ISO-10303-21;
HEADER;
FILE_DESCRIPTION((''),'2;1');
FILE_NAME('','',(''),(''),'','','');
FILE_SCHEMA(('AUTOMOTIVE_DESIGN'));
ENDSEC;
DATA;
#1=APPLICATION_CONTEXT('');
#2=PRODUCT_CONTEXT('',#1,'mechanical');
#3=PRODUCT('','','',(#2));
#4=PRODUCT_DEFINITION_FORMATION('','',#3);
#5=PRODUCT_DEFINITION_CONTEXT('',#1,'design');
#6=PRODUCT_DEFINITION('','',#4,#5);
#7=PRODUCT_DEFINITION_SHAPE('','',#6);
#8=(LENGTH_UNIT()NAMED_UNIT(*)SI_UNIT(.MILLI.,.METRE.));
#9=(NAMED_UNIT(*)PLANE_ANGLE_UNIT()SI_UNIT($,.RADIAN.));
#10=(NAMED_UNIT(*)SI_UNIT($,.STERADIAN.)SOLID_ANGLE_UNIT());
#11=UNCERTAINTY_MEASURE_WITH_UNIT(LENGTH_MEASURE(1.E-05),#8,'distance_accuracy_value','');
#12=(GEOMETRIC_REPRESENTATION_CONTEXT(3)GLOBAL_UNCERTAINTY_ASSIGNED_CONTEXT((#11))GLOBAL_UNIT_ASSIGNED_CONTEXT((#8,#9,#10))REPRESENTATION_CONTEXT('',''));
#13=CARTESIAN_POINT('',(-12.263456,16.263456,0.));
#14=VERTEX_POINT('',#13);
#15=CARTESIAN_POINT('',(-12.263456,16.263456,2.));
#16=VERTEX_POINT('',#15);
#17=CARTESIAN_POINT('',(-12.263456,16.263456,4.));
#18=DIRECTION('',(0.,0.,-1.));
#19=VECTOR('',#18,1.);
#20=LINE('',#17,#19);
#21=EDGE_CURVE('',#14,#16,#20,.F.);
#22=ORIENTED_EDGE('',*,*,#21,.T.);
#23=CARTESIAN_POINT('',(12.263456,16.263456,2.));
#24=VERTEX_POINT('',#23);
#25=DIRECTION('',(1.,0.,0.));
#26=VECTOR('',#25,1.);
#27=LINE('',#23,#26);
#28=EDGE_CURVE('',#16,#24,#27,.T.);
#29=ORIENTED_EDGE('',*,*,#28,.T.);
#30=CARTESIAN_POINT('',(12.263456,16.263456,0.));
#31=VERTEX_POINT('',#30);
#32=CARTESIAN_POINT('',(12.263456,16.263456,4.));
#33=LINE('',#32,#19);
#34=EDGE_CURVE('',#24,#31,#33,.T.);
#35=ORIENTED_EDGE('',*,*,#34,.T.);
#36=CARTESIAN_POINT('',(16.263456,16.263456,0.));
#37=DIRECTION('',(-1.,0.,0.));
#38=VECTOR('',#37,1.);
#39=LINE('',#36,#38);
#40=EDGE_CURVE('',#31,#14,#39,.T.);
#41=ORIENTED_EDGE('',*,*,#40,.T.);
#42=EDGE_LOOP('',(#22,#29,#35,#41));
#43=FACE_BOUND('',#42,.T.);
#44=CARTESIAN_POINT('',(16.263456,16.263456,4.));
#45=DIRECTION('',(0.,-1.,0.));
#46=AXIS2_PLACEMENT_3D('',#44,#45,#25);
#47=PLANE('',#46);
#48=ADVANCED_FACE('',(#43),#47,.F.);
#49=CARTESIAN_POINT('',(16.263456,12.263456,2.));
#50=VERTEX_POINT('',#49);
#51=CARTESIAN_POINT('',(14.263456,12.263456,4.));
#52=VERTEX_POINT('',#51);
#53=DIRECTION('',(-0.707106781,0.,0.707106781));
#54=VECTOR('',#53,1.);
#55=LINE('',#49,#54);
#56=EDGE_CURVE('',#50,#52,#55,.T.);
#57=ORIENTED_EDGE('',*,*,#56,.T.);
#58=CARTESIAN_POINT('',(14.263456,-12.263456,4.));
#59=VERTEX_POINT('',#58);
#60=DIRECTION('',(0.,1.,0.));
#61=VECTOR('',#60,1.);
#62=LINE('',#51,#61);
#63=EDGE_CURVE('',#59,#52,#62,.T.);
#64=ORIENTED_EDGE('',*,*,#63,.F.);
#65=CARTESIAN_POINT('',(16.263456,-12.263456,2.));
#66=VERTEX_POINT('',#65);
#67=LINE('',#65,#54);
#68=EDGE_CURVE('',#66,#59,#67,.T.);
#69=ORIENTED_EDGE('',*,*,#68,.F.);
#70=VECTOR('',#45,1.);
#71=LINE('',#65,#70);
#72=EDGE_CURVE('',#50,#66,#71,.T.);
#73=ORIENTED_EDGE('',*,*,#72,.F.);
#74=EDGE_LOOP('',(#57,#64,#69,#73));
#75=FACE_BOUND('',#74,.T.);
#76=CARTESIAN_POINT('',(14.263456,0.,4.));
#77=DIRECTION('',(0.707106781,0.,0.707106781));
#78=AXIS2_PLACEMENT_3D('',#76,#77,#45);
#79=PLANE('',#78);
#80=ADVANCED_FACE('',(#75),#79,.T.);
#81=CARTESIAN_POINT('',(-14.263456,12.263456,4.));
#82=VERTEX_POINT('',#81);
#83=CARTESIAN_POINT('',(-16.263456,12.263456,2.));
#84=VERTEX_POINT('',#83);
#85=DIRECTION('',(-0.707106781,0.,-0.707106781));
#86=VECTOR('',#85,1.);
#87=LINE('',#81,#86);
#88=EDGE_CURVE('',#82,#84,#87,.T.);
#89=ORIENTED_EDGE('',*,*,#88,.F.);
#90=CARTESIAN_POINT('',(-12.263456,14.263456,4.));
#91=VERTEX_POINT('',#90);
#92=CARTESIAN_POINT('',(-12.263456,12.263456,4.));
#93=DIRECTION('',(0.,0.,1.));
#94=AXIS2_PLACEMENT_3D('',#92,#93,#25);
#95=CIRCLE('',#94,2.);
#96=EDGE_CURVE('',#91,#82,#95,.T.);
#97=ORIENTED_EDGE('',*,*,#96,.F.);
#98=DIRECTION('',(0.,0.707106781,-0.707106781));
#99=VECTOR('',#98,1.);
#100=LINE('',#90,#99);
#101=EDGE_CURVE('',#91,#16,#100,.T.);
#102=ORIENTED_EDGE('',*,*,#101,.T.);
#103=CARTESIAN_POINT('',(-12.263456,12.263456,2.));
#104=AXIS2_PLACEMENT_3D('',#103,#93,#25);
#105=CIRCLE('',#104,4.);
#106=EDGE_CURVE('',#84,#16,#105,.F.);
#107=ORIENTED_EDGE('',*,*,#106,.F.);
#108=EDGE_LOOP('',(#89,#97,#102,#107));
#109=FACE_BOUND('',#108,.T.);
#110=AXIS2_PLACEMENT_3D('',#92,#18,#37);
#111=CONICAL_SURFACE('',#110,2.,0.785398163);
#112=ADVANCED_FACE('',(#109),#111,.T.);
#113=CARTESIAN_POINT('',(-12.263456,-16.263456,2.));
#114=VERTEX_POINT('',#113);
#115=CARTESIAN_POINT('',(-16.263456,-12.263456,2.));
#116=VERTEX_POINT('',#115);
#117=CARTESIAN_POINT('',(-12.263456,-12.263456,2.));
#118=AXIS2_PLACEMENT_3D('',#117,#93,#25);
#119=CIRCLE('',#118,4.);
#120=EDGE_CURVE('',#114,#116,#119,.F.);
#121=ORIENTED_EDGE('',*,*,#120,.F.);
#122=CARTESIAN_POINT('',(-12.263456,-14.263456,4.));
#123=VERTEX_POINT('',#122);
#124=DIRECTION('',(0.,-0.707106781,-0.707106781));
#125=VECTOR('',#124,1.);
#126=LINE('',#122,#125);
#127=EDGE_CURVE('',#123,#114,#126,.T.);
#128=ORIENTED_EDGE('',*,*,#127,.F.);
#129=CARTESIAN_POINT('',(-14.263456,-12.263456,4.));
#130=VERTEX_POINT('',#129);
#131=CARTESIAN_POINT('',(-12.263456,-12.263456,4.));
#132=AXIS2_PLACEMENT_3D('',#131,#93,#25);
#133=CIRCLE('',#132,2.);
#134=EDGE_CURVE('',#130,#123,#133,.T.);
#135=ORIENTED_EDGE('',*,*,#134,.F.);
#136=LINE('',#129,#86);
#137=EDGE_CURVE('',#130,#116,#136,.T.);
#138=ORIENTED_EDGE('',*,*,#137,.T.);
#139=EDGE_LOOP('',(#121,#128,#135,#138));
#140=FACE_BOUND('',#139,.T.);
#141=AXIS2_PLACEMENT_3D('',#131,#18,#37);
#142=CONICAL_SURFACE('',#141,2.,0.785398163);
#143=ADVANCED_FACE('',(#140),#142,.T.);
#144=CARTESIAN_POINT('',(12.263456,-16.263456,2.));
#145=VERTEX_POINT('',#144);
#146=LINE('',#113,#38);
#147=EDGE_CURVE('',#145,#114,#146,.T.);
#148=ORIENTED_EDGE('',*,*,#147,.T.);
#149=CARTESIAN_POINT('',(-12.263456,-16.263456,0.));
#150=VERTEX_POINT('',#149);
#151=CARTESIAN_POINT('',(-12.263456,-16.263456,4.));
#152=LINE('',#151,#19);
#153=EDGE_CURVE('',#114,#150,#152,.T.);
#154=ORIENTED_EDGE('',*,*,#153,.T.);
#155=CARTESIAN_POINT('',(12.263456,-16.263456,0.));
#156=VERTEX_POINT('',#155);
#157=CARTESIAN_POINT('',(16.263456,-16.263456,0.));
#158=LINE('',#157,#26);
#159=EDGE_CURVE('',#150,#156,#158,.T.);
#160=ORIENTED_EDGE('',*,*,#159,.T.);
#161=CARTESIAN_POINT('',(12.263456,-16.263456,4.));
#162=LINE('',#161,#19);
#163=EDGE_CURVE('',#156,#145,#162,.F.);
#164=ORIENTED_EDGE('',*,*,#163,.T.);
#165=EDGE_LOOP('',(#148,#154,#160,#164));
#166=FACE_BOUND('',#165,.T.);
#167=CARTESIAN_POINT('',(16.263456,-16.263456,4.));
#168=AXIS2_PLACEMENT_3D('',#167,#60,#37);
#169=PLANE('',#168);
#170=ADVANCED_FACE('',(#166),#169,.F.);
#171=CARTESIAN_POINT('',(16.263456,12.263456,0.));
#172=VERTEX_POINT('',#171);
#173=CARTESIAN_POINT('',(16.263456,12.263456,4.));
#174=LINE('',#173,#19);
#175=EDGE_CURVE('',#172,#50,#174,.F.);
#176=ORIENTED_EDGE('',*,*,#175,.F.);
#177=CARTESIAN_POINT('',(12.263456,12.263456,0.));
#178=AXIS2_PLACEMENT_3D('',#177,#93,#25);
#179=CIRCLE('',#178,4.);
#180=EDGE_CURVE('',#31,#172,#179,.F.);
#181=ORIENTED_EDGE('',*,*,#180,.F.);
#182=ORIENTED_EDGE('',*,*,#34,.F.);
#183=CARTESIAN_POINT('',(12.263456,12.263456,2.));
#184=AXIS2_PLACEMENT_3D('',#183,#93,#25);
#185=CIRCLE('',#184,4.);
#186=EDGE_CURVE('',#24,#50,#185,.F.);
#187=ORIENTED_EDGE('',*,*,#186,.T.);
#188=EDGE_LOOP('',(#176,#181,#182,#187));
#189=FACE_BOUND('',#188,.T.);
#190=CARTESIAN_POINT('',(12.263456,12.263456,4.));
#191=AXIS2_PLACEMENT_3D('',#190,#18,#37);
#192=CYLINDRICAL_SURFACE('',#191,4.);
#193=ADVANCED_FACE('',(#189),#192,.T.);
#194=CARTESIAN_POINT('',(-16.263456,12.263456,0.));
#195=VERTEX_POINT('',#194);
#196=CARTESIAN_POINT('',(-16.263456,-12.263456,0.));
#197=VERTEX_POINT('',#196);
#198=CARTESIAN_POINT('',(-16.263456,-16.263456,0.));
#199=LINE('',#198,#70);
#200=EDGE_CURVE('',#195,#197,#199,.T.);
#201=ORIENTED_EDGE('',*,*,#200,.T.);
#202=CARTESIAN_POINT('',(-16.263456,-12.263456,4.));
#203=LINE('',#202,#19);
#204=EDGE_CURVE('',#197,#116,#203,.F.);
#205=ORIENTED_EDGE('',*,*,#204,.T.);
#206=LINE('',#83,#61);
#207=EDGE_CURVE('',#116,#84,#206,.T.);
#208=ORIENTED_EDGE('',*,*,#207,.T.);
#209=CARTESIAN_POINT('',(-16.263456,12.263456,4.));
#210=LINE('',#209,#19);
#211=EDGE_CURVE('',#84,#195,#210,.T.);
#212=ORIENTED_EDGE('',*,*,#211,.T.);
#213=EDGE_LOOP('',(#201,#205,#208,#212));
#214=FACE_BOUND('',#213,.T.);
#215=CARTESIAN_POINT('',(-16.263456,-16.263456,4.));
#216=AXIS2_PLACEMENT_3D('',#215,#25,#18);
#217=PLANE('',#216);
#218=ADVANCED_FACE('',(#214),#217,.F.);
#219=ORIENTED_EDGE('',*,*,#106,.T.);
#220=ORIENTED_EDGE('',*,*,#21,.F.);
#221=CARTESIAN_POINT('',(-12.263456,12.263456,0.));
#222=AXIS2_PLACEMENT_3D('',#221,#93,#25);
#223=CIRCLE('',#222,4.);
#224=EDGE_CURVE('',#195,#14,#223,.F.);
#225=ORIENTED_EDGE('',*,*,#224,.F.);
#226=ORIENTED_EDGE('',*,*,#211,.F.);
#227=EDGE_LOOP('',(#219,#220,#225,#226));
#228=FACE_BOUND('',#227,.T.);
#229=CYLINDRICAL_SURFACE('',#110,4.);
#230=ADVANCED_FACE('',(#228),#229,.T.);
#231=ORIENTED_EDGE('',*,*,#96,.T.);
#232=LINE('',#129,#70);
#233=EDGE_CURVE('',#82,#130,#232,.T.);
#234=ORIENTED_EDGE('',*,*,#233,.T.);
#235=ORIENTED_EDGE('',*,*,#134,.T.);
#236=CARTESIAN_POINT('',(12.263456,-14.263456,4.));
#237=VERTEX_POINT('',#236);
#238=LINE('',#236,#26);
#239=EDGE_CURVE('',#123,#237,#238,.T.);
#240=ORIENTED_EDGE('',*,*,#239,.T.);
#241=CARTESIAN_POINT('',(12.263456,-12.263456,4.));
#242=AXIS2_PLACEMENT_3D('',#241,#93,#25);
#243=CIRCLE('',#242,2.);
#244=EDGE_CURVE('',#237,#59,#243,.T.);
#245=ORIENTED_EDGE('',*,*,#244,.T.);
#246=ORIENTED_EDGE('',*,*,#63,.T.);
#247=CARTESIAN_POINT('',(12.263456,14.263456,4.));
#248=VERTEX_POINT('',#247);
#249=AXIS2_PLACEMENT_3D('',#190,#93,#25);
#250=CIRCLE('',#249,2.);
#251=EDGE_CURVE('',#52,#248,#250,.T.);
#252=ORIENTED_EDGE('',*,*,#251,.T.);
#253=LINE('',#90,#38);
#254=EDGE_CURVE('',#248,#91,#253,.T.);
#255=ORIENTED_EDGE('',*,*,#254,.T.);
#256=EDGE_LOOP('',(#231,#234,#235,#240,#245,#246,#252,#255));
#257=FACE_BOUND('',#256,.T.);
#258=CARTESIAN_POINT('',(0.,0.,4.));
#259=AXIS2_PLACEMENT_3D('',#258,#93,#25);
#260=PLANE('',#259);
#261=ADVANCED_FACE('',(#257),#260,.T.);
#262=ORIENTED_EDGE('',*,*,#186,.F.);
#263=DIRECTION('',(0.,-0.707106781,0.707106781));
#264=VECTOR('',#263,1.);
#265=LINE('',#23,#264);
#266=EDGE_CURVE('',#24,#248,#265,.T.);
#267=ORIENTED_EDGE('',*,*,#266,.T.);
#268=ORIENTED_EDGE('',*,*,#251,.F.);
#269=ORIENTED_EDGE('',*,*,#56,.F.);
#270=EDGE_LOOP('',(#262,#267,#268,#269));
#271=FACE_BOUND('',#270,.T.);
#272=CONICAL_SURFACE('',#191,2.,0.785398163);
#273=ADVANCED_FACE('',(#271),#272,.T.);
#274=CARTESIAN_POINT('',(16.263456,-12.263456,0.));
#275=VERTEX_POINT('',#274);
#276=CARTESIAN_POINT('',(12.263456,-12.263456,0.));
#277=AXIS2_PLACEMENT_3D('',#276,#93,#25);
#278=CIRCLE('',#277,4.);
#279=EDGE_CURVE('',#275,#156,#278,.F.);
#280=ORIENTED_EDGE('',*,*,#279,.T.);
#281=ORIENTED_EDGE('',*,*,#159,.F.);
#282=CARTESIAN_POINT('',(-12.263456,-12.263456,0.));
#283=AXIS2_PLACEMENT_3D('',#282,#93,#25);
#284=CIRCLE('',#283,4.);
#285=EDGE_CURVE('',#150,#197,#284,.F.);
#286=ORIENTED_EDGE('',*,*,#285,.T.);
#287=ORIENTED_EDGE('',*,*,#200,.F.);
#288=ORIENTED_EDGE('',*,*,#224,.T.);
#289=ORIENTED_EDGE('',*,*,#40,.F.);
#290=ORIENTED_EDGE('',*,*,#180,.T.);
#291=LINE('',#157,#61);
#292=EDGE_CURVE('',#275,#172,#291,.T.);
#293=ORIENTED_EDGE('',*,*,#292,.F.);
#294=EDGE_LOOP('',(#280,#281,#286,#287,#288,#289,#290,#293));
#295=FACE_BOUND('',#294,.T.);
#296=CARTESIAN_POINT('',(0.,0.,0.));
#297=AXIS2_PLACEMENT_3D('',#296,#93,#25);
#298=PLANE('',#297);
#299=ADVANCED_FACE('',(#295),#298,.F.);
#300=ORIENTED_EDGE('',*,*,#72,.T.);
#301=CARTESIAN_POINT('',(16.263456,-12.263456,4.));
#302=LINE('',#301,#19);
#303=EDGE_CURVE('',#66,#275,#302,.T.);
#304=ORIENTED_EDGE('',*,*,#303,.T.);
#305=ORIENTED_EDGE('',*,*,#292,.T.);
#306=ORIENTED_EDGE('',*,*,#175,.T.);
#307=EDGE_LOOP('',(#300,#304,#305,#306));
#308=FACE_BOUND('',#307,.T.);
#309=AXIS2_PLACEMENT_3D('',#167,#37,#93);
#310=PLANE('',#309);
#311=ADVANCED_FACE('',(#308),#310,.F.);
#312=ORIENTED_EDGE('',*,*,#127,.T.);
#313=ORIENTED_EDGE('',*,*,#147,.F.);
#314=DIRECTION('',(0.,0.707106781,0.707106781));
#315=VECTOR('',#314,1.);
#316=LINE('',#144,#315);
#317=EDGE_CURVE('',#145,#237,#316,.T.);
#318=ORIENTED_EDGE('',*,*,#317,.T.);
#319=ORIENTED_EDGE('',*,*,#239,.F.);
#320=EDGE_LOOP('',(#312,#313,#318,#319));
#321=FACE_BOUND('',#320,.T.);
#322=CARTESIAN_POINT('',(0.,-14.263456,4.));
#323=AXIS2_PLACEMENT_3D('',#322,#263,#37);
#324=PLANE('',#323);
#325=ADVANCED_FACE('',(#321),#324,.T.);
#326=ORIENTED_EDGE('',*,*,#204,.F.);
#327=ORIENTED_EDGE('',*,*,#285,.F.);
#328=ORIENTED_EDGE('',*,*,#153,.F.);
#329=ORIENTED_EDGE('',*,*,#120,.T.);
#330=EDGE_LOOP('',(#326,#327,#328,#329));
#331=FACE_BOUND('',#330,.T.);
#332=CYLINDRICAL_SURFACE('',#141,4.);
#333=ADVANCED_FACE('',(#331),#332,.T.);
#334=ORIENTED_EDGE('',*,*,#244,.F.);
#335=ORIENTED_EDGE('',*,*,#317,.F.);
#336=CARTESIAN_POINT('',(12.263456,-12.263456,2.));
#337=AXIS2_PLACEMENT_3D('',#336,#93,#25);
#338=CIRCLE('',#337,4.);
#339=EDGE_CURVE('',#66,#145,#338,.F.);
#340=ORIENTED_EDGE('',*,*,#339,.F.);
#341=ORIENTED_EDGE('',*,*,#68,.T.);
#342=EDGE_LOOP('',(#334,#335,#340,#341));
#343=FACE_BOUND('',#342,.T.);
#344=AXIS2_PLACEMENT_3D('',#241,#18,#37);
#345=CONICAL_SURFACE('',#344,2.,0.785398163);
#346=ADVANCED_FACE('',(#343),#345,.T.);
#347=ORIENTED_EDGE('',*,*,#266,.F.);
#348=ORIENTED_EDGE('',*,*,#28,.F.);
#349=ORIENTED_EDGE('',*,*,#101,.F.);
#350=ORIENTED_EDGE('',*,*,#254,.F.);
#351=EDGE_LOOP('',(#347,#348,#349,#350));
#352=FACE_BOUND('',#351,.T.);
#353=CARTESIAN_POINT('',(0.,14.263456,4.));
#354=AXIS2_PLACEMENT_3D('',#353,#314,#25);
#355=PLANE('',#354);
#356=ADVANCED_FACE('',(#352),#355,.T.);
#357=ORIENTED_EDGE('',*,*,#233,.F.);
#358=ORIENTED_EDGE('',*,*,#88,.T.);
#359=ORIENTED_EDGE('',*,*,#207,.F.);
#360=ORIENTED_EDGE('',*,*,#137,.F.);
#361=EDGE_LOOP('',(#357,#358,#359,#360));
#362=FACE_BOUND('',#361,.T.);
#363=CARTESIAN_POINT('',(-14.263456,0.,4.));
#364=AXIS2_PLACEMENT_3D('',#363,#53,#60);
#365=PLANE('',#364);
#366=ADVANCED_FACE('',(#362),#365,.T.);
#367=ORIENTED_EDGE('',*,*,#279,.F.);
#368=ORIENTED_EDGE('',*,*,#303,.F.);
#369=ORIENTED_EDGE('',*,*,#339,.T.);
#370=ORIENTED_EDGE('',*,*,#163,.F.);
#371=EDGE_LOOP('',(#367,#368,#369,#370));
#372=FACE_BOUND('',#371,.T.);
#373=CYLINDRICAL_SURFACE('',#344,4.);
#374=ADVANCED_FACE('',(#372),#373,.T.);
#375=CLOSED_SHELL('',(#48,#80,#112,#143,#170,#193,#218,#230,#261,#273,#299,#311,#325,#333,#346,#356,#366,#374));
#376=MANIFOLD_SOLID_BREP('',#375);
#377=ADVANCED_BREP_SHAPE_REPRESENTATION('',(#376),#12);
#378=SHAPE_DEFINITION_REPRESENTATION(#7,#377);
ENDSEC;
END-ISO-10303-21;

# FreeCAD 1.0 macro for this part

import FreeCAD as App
import Part
import Sketcher


def edges_at(feature, points):
    """Names of the edges that pass closest to the given points."""
    edges = feature.Shape.Edges
    near = lambda p: min(range(len(edges)), key=lambda i: edges[i].distToShape(Part.Vertex(*p))[0])
    return sorted({f"Edge{near(p) + 1}" for p in points})


def add_polygon(sketch, points):
    """Adds a closed chain of lines whose ends are joined by coincident constraints."""
    first, n = sketch.GeometryCount, len(points)
    for a, b in zip(points, points[1:] + points[:1]):
        sketch.addGeometry(Part.LineSegment(App.Vector(*a, 0), App.Vector(*b, 0)), False)
    for i in range(n):
        sketch.addConstraint(Sketcher.Constraint("Coincident", first + i, 2, first + (i + 1) % n, 1))

doc = App.newDocument("Part")
body = doc.addObject("PartDesign::Body", "Body")

sketch1 = body.newObject("Sketcher::SketchObject", "Sketch")
sketch1.AttachmentSupport = (doc.getObject("XY_Plane"), [""])
sketch1.MapMode = "FlatFace"
add_polygon(sketch1, [(-16, 16), (-16, -16), (16, -16), (16, 16)])
sketch1.addConstraint(Sketcher.Constraint("Vertical", 0))
sketch1.addConstraint(Sketcher.Constraint("Horizontal", 1))
sketch1.addConstraint(Sketcher.Constraint("Vertical", 2))
sketch1.addConstraint(Sketcher.Constraint("Horizontal", 3))
sketch1.addConstraint(Sketcher.Constraint("Symmetric", 0, 2, 2, 2, -1, 1))
sketch1.addConstraint(Sketcher.Constraint("Equal", 3, 0))
sketch1.addConstraint(Sketcher.Constraint("DistanceX", 1, 1, 1, 2, 32.526912))
pad1 = body.newObject("PartDesign::Pad", "Pad")
pad1.Profile = sketch1
pad1.Length = 4
doc.recompute()

fillet = body.newObject("PartDesign::Fillet", "Fillet")
fillet.Base = (pad1, edges_at(pad1, [
    (-16.263, 16.263, 2),
    (16.263, 16.263, 2),
    (16.263, -16.263, 2),
    (-16.263, -16.263, 2),
]))
fillet.Radius = 4
doc.recompute()

chamfer = body.newObject("PartDesign::Chamfer", "Chamfer")
chamfer.Base = (fillet, edges_at(fillet, [
    (0, -16.263, 4),
    (-16.263, 0, 4),
    (16.263, 0, 4),
    (0, 16.263, 4),
    (-15.092, 15.092, 4),
    (15.092, 15.092, 4),
    (15.092, -15.092, 4),
    (-15.092, -15.092, 4),
]))
chamfer.Size = 2

doc.recompute()
